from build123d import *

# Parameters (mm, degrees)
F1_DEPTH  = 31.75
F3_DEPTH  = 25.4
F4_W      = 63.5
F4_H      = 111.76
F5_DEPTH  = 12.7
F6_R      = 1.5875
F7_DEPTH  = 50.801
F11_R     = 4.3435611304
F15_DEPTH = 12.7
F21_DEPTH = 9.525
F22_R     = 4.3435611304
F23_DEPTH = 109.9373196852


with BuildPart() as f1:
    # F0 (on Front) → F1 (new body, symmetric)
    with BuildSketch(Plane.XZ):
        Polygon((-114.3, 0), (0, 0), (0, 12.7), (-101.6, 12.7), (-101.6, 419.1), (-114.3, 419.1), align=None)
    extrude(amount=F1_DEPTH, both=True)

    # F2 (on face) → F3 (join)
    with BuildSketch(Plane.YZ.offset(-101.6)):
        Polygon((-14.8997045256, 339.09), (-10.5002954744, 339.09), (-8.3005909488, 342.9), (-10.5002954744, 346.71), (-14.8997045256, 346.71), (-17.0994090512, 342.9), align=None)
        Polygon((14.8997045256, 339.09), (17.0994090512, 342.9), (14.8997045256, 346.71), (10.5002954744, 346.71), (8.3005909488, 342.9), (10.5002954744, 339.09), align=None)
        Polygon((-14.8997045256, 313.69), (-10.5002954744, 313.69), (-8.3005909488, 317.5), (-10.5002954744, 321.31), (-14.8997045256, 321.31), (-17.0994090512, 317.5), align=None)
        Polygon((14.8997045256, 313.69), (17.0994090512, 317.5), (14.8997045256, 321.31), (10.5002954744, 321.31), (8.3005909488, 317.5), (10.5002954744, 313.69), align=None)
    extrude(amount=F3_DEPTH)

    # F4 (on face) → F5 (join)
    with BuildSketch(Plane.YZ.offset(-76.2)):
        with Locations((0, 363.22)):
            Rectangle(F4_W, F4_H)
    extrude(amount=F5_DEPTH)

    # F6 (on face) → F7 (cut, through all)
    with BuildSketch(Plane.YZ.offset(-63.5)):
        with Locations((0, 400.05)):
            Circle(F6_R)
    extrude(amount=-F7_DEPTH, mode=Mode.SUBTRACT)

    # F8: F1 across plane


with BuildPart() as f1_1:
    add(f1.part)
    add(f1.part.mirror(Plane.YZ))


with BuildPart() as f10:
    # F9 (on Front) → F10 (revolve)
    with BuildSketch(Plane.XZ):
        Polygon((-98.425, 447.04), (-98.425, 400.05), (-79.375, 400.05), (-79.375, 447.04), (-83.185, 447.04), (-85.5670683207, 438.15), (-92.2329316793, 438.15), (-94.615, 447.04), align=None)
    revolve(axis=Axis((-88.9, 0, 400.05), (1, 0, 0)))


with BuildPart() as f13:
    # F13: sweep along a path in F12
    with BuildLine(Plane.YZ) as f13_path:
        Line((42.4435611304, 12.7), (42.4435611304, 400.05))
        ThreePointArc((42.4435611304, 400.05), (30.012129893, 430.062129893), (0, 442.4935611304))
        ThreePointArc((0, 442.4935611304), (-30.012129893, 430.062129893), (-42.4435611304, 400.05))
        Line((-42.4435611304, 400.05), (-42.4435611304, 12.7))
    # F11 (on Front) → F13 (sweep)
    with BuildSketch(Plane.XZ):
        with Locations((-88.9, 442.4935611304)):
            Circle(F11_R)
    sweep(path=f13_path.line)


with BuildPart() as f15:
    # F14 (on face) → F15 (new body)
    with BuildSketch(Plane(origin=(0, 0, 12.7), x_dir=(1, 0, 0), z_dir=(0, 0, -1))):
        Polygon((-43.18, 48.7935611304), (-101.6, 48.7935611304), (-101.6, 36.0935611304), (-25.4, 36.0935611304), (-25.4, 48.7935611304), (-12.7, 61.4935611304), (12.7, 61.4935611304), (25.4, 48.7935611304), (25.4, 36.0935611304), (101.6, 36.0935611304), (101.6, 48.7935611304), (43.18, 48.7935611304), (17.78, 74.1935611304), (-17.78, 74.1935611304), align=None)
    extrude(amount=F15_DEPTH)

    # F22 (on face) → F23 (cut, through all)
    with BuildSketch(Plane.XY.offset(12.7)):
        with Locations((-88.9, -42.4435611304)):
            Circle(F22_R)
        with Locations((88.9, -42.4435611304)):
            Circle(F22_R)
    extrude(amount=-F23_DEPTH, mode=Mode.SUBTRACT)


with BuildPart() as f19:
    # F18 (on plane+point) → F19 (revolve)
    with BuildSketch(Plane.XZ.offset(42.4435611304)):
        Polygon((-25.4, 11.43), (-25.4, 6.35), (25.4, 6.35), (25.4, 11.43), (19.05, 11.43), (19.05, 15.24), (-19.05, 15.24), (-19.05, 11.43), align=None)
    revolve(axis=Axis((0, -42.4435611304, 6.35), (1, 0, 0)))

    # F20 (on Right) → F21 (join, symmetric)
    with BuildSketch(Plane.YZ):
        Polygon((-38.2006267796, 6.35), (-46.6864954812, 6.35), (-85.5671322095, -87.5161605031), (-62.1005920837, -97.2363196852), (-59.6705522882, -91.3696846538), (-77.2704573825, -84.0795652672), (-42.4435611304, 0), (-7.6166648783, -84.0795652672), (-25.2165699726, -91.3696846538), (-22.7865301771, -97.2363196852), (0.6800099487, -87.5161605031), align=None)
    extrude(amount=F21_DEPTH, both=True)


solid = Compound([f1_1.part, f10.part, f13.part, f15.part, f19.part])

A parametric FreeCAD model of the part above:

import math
import FreeCAD as App
import Part
import Sketcher

V = App.Vector
Q = App.Units.Quantity


def add_polygon(sketch, points):
    """Adds a closed chain of lines whose ends are joined by coincident constraints."""
    first, n = sketch.GeometryCount, len(points)
    for a, b in zip(points, points[1:] + points[:1]):
        sketch.addGeometry(Part.LineSegment(App.Vector(*a, 0), App.Vector(*b, 0)), False)
    for i in range(n):
        sketch.addConstraint(Sketcher.Constraint("Coincident", first + i, 2, first + (i + 1) % n, 1))

doc = App.newDocument("Part")
params = doc.addObject("Spreadsheet::Sheet", "Params")
for row, (alias, value) in enumerate([
    ("sketch1_width", "4 in"),
    ("sketch1_height", "16 in"),
    ("sketch1_width2", "4.5 in"),
    ("pad1_length", "2.5 in"),
    ("pad2_length", "1 in"),
    ("sketch3_width", "2.5 in"),
    ("sketch3_height", "4.4 in"),
    ("pad3_length", "0.5 in"),
    ("sketch4_diameter", "0.125 in"),
    ("sketch5_width", "0.75 in"),
    ("sketch5_width2", "0.15 in"),
    ("sketch5_height", "1.85 in"),
    ("revolution_angle", "360 deg"),
    ("sketch7_height", "15.25 in"),
    ("sketch8_width", "3 in"),
    ("sketch8_width2", "1 in"),
    ("sketch8_width3", "2.3 in"),
    ("sketch8_width4", "1.4 in"),
    ("sketch8_height", "0.5 in"),
    ("pad4_length", "0.5 in"),
    ("sketch10_width", "2 in"),
    ("sketch10_width2", "1.5 in"),
    ("sketch10_height", "0.2 in"),
    ("sketch10_height2", "0.15 in"),
    ("revolution2_angle", "360 deg"),
    ("sketch11_length", "4 in"),
    ("sketch11_length2", "1 in"),
    ("sketch11_length3", "0.25 in"),
    ("sketch11_length4", "0.75 in"),
    ("pad5_length", "0.75 in"),
], start=1):
    params.set(f"A{row}", alias)
    params.set(f"B{row}", "=" + value)
    params.setAlias(f"B{row}", alias)

body = doc.addObject("PartDesign::Body", "Body")

# Sketch on XZ plane
sketch1 = doc.addObject("Sketcher::SketchObject", "Sketch")
body.addObject(sketch1)
sketch1.AttachmentSupport = (doc.XZ_Plane, [""])
sketch1.MapMode = "FlatFace"
add_polygon(sketch1, [(-114, 0), (0, 0), (0, 13), (-102, 13), (-102, 419), (-114, 419)])  # lines 0-5
sketch1.addConstraint([
    Sketcher.Constraint("Horizontal", 0),
    Sketcher.Constraint("Vertical", 1),
    Sketcher.Constraint("Horizontal", 2),
    Sketcher.Constraint("Vertical", 3),
    Sketcher.Constraint("Horizontal", 4),
    Sketcher.Constraint("Vertical", 5),
    Sketcher.Constraint("Coincident", 0, 2, -1, 1),
    Sketcher.Constraint("Equal", 4, 1),
    Sketcher.Constraint("DistanceX", 2, 2, 2, 1, Q("4 in")),
    Sketcher.Constraint("DistanceY", 3, 1, 3, 2, Q("16 in")),
    Sketcher.Constraint("DistanceX", 0, 1, 0, 2, Q("4.5 in")),
])
sketch1.setExpression("Constraints[14]", "Params.sketch1_width")
sketch1.setExpression("Constraints[15]", "Params.sketch1_height")
sketch1.setExpression("Constraints[16]", "Params.sketch1_width2")
pad1 = doc.addObject("PartDesign::Pad", "Pad")
body.addObject(pad1)
pad1.Profile = sketch1
pad1.setExpression("Length", "Params.pad1_length")
pad1.Midplane = True

# Sketch on YZ plane
sketch2 = doc.addObject("Sketcher::SketchObject", "Sketch001")
body.addObject(sketch2)
sketch2.AttachmentSupport = (doc.YZ_Plane, [""])
sketch2.MapMode = "FlatFace"
sketch2.AttachmentOffset = App.Placement(V(0, 0, -4 * 25.4), App.Rotation())
add_polygon(sketch2, [(-14.9, 339.1), (-10.5, 339.1), (-8.3, 342.9), (-10.5, 346.7), (-14.9, 346.7), (-17.1, 342.9)])  # lines 0-5
add_polygon(sketch2, [(14.9, 339.1), (17.1, 342.9), (14.9, 346.7), (10.5, 346.7), (8.3, 342.9), (10.5, 339.1)])  # lines 6-11
add_polygon(sketch2, [(-14.9, 313.7), (-10.5, 313.7), (-8.3, 317.5), (-10.5, 321.3), (-14.9, 321.3), (-17.1, 317.5)])  # lines 12-17
add_polygon(sketch2, [(14.9, 313.7), (17.1, 317.5), (14.9, 321.3), (10.5, 321.3), (8.3, 317.5), (10.5, 313.7)])  # lines 18-23
sketch2.addConstraint([
    Sketcher.Constraint("Horizontal", 0),
    Sketcher.Constraint("Horizontal", 3),
    Sketcher.Constraint("Horizontal", 8),
    Sketcher.Constraint("Horizontal", 11),
    Sketcher.Constraint("Horizontal", 12),
    Sketcher.Constraint("Horizontal", 15),
    Sketcher.Constraint("Horizontal", 20),
    Sketcher.Constraint("Horizontal", 23),
    Sketcher.Constraint("Symmetric", 4, 2, 6, 2, -2),
    Sketcher.Constraint("Symmetric", 3, 2, 7, 2, -2),
    Sketcher.Constraint("Symmetric", 1, 2, 9, 2, -2),
    Sketcher.Constraint("Symmetric", 0, 2, 10, 2, -2),
    Sketcher.Constraint("Symmetric", 16, 2, 18, 2, -2),
    Sketcher.Constraint("Symmetric", 15, 2, 19, 2, -2),
    Sketcher.Constraint("Symmetric", 13, 2, 21, 2, -2),
    Sketcher.Constraint("Symmetric", 12, 2, 22, 2, -2),
    Sketcher.Constraint("Parallel", 1, 4),
    Sketcher.Constraint("Parallel", 2, 5),
    Sketcher.Constraint("Parallel", 4, 6),
    Sketcher.Constraint("Parallel", 5, 7),
    Sketcher.Constraint("Parallel", 6, 9),
    Sketcher.Constraint("Parallel", 9, 13),
    Sketcher.Constraint("Parallel", 10, 14),
    Sketcher.Constraint("Parallel", 13, 16),
    Sketcher.Constraint("Parallel", 14, 17),
    Sketcher.Constraint("Parallel", 16, 18),
    Sketcher.Constraint("Parallel", 18, 21),
    Sketcher.Constraint("Horizontal", 1, 2, 4, 2),
    Sketcher.Constraint("Horizontal", 13, 2, 16, 2),
    Sketcher.Constraint("Vertical", 0, 2, 2, 2),
    Sketcher.Constraint("Vertical", 2, 2, 12, 2),
    Sketcher.Constraint("Vertical", 1, 2, 13, 2),
    Sketcher.Constraint("Vertical", 12, 2, 14, 2),
    Sketcher.Constraint("Vertical", 5, 2, 15, 2),
    Sketcher.Constraint("Angle", 1, Q("60 deg")),
    Sketcher.Constraint("DistanceX", 1, 2, 6, 2, Q("1 in")),
    Sketcher.Constraint("DistanceY", 12, 2, 0, 2, Q("1 in")),
    Sketcher.Constraint("DistanceY", -1, 1, 1, 2, Q("13.5 in")),
    Sketcher.Constraint("DistanceY", 0, 2, 2, 2, Q("0.3 in")),
    Sketcher.Constraint("DistanceX", 0, 1, 0, 2, 4.399409),
])
pad2 = doc.addObject("PartDesign::Pad", "Pad001")
body.addObject(pad2)
pad2.Profile = sketch2
pad2.setExpression("Length", "Params.pad2_length")

# Sketch on YZ plane
sketch3 = doc.addObject("Sketcher::SketchObject", "Sketch002")
body.addObject(sketch3)
sketch3.AttachmentSupport = (doc.YZ_Plane, [""])
sketch3.MapMode = "FlatFace"
sketch3.AttachmentOffset = App.Placement(V(0, 0, -3 * 25.4), App.Rotation())
add_polygon(sketch3, [(-32, 419), (-32, 307), (32, 307), (32, 419)])  # lines 0-3
sketch3.addConstraint([
    Sketcher.Constraint("Vertical", 0),
    Sketcher.Constraint("Horizontal", 1),
    Sketcher.Constraint("Vertical", 2),
    Sketcher.Constraint("Horizontal", 3),
    Sketcher.Constraint("DistanceX", 1, 1, 1, 2, Q("2.5 in")),
    Sketcher.Constraint("DistanceY", 0, 2, 0, 1, Q("4.4 in")),
    Sketcher.Constraint("DistanceY", -1, 1, 0, 2, Q("12.1 in")),
    Sketcher.Constraint("DistanceX", 0, 2, -1, 1, Q("1.25 in")),
])
sketch3.setExpression("Constraints[8]", "Params.sketch3_width")
sketch3.setExpression("Constraints[9]", "Params.sketch3_height")
pad3 = doc.addObject("PartDesign::Pad", "Pad002")
body.addObject(pad3)
pad3.Profile = sketch3
pad3.setExpression("Length", "Params.pad3_length")

# Sketch on YZ plane
sketch4 = doc.addObject("Sketcher::SketchObject", "Sketch003")
body.addObject(sketch4)
sketch4.AttachmentSupport = (doc.YZ_Plane, [""])
sketch4.MapMode = "FlatFace"
sketch4.AttachmentOffset = App.Placement(V(0, 0, -2.5 * 25.4), App.Rotation())
sketch4.addGeometry(Part.Circle(V(0, 400.1, 0), V(0, 0, 1), 1.6), False)
sketch4.addConstraint([
    Sketcher.Constraint("PointOnObject", 0, 3, -2),
    Sketcher.Constraint("Diameter", 0, Q("0.125 in")),
    Sketcher.Constraint("DistanceY", -1, 1, 0, 3, Q("15.75 in")),
])
sketch4.setExpression("Constraints[1]", "Params.sketch4_diameter")
pocket1 = doc.addObject("PartDesign::Pocket", "Pocket")
body.addObject(pocket1)
pocket1.Profile = sketch4
pocket1.Type = "ThroughAll"
body2 = doc.addObject("PartDesign::Body", "Body001")
doc.recompute()

body2.BaseFeature = body
doc.recompute()

mirroring = doc.addObject("Part::Mirroring", "Mirroring")
mirroring.Source = body
mirroring.Base = V(0, 0, 0)
mirroring.Normal = V(1, 0, 0)
body3 = doc.addObject("PartDesign::Body", "Body002")
body3.BaseFeature = mirroring
boolean = doc.addObject("PartDesign::Boolean", "Boolean")
body2.addObject(boolean)
boolean.Type = "Fuse"
boolean.addObjects([body3])
doc.recompute()
body4 = doc.addObject("PartDesign::Body", "Body003")

# Sketch on XZ plane
sketch5 = doc.addObject("Sketcher::SketchObject", "Sketch004")
body4.addObject(sketch5)
sketch5.AttachmentSupport = (doc.getObject("XZ_Plane003"), [""])
sketch5.MapMode = "FlatFace"
add_polygon(sketch5, [(-98.4, 447), (-98.4, 400.1), (-79.4, 400.1), (-79.4, 447), (-83.2, 447), (-85.6, 438.1), (-92.2, 438.1), (-94.6, 447)])  # lines 0-7
sketch5.addGeometry(Part.LineSegment(V(-98.4, 400.1, 0), V(-79.4, 400.1, 0)), True)  # axis
sketch5.addConstraint([
    Sketcher.Constraint("Vertical", 0),
    Sketcher.Constraint("Horizontal", 1),
    Sketcher.Constraint("Vertical", 2),
    Sketcher.Constraint("Horizontal", 3),
    Sketcher.Constraint("Horizontal", 5),
    Sketcher.Constraint("Horizontal", 7),
    Sketcher.Constraint("Horizontal", 8),
    Sketcher.Constraint("Coincident", 8, 1, 0, 2),
    Sketcher.Constraint("Horizontal", 3, 2, 6, 2),
    Sketcher.Constraint("Vertical", 2, 2, 8, 2),
    Sketcher.Constraint("Equal", 3, 7),
    Sketcher.Constraint("Equal", 4, 6),
    Sketcher.Constraint("Angle", 4, Q("-105 deg")),
    Sketcher.Constraint("DistanceX", 1, 1, 1, 2, Q("0.75 in")),
    Sketcher.Constraint("DistanceX", 3, 2, 3, 1, Q("0.15 in")),
    Sketcher.Constraint("DistanceY", 0, 2, 0, 1, Q("1.85 in")),
    Sketcher.Constraint("DistanceY", -1, 1, 2, 2, Q("17.6 in")),
    Sketcher.Constraint("DistanceY", 1, 2, 4, 2, Q("1.5 in")),
    Sketcher.Constraint("DistanceX", 0, 2, -1, 1, Q("3.875 in")),
])
sketch5.setExpression("Constraints[21]", "Params.sketch5_width")
sketch5.setExpression("Constraints[22]", "Params.sketch5_width2")
sketch5.setExpression("Constraints[23]", "Params.sketch5_height")
revolution = doc.addObject("PartDesign::Revolution", "Revolution")
body4.addObject(revolution)
revolution.Profile = sketch5
revolution.ReferenceAxis = (sketch5, ["Axis0"])
revolution.setExpression("Angle", "Params.revolution_angle")
body5 = doc.addObject("PartDesign::Body", "Body004")

# Sketch on XZ plane
sketch6 = doc.addObject("Sketcher::SketchObject", "Sketch005")
body5.addObject(sketch6)
sketch6.AttachmentSupport = (doc.getObject("XZ_Plane004"), [""])
sketch6.MapMode = "FlatFace"
sketch6.addGeometry(Part.Circle(V(-88.9, 442.5, 0), V(0, 0, 1), 4.3), False)
sketch6.addConstraint([
    Sketcher.Constraint("DistanceX", 0, 3, -1, 1, Q("3.5 in")),
    Sketcher.Constraint("Diameter", 0, 8.687122),
    Sketcher.Constraint("DistanceY", -1, 1, 0, 3, 442.493561),
])

# Sketch on YZ plane
sketch7 = doc.addObject("Sketcher::SketchObject", "Sketch006")
body5.addObject(sketch7)
sketch7.AttachmentSupport = (doc.getObject("YZ_Plane004"), [""])
sketch7.MapMode = "FlatFace"
sketch7.addGeometry([
    Part.LineSegment(V(42, 13, 0), V(42, 400, 0)),
    Part.ArcOfCircle(Part.Circle(V(0, 400, 0), V(0, 0, 1), 42), math.radians(0), math.radians(90)),
    Part.ArcOfCircle(Part.Circle(V(0, 400, 0), V(0, 0, 1), 42), math.radians(90), math.radians(180)),
    Part.LineSegment(V(-42, 400, 0), V(-42, 13, 0)),
], False)
sketch7.addConstraint([
    Sketcher.Constraint("Tangent", 0, 2, 1, 1),
    Sketcher.Constraint("Tangent", 1, 2, 2, 1),
    Sketcher.Constraint("Tangent", 2, 2, 3, 1),
    Sketcher.Constraint("Vertical", 0),
    Sketcher.Constraint("Vertical", 3),
    Sketcher.Constraint("Equal", 1, 2),
    Sketcher.Constraint("Symmetric", 0, 1, 3, 2, -2),
    Sketcher.Constraint("PointOnObject", 1, 2, -2),
    Sketcher.Constraint("DistanceY", 0, 1, 0, 2, Q("15.25 in")),
    Sketcher.Constraint("DistanceY", -1, 1, 0, 1, Q("0.5 in")),
    Sketcher.Constraint("Radius", 1, 42.443561),
])
sketch7.setExpression("Constraints[8]", "Params.sketch7_height")
doc.recompute()

additivepipe = doc.addObject("PartDesign::AdditivePipe", "AdditivePipe")
body5.addObject(additivepipe)
additivepipe.Profile = sketch6
additivepipe.Spine = (sketch7, ["Edge1", "Edge2", "Edge3", "Edge4"])
body6 = doc.addObject("PartDesign::Body", "Body005")

# Sketch on XY plane
sketch8 = doc.addObject("Sketcher::SketchObject", "Sketch007")
body6.addObject(sketch8)
sketch8.AttachmentSupport = (doc.getObject("XY_Plane005"), [""])
sketch8.MapMode = "FlatFace"
sketch8.AttachmentOffset = App.Placement(V(0, 0, 0.5 * 25.4), App.Rotation())
add_polygon(sketch8, [(-43, -49), (-102, -49), (-102, -36), (-25, -36), (-25, -49), (-13, -61), (13, -61), (25, -49), (25, -36), (102, -36), (102, -49), (43, -49), (18, -74), (-18, -74)])  # lines 0-13
sketch8.addConstraint([
    Sketcher.Constraint("Horizontal", 0),
    Sketcher.Constraint("Vertical", 1),
    Sketcher.Constraint("Horizontal", 2),
    Sketcher.Constraint("Vertical", 3),
    Sketcher.Constraint("Horizontal", 5),
    Sketcher.Constraint("Vertical", 7),
    Sketcher.Constraint("Horizontal", 8),
    Sketcher.Constraint("Vertical", 9),
    Sketcher.Constraint("Horizontal", 10),
    Sketcher.Constraint("Horizontal", 12),
    Sketcher.Constraint("Symmetric", 3, 2, 6, 2, -2),
    Sketcher.Constraint("Symmetric", 1, 2, 8, 2, -2),
    Sketcher.Constraint("Symmetric", 10, 2, 13, 2, -2),
    Sketcher.Constraint("Perpendicular", 4, 6),
    Sketcher.Constraint("Parallel", 6, 11),
    Sketcher.Constraint("Perpendicular", 11, 13),
    Sketcher.Constraint("Horizontal", 0, 2, 3, 2),
    Sketcher.Constraint("Equal", 4, 6),
    Sketcher.Constraint("DistanceX", 2, 1, 2, 2, Q("3 in")),
    Sketcher.Constraint("DistanceX", 5, 1, 5, 2, Q("1 in")),
    Sketcher.Constraint("DistanceX", 0, 2, 0, 1, Q("2.3 in")),
    Sketcher.Constraint("DistanceX", 12, 2, 12, 1, Q("1.4 in")),
    Sketcher.Constraint("DistanceY", 1, 1, 1, 2, Q("0.5 in")),
    Sketcher.Constraint("DistanceX", 0, 2, -1, 1, Q("4 in")),
    Sketcher.Constraint("DistanceY", 0, 2, -1, 1, 48.793561),
])
sketch8.setExpression("Constraints[32]", "Params.sketch8_width")
sketch8.setExpression("Constraints[33]", "Params.sketch8_width2")
sketch8.setExpression("Constraints[34]", "Params.sketch8_width3")
sketch8.setExpression("Constraints[35]", "Params.sketch8_width4")
sketch8.setExpression("Constraints[36]", "Params.sketch8_height")
pad4 = doc.addObject("PartDesign::Pad", "Pad003")
body6.addObject(pad4)
pad4.Profile = sketch8
pad4.setExpression("Length", "Params.pad4_length")
pad4.Reversed = True

# Sketch on XY plane
sketch9 = doc.addObject("Sketcher::SketchObject", "Sketch008")
body6.addObject(sketch9)
sketch9.AttachmentSupport = (doc.getObject("XY_Plane005"), [""])
sketch9.MapMode = "FlatFace"
sketch9.AttachmentOffset = App.Placement(V(0, 0, 0.5 * 25.4), App.Rotation())
sketch9.addGeometry([
    Part.Circle(V(-88.9, -42.4, 0), V(0, 0, 1), 4.3),
    Part.Circle(V(88.9, -42.4, 0), V(0, 0, 1), 4.3),
], False)
sketch9.addConstraint([
    Sketcher.Constraint("Equal", 0, 1),
    Sketcher.Constraint("Symmetric", 0, 3, 1, 3, -2),
    Sketcher.Constraint("DistanceX", 0, 3, 1, 3, Q("7 in")),
    Sketcher.Constraint("Diameter", 0, 8.687122),
    Sketcher.Constraint("DistanceY", 0, 3, -1, 1, 42.443561),
])
pocket2 = doc.addObject("PartDesign::Pocket", "Pocket001")
body6.addObject(pocket2)
pocket2.Profile = sketch9
pocket2.Type = "ThroughAll"
body7 = doc.addObject("PartDesign::Body", "Body006")

# Sketch on XZ plane
sketch10 = doc.addObject("Sketcher::SketchObject", "Sketch009")
body7.addObject(sketch10)
sketch10.AttachmentSupport = (doc.getObject("XZ_Plane006"), [""])
sketch10.MapMode = "FlatFace"
sketch10.AttachmentOffset = App.Placement(V(0, 0, 42.443561), App.Rotation())
add_polygon(sketch10, [(-25.4, 11.4), (-25.4, 6.3), (25.4, 6.3), (25.4, 11.4), (19.1, 11.4), (19.1, 15.2), (-19.1, 15.2), (-19.1, 11.4)])  # lines 0-7
sketch10.addGeometry(Part.LineSegment(V(-25.4, 6.3, 0), V(25.4, 6.3, 0)), True)  # axis
sketch10.addConstraint([
    Sketcher.Constraint("Vertical", 0),
    Sketcher.Constraint("Horizontal", 1),
    Sketcher.Constraint("Vertical", 2),
    Sketcher.Constraint("Horizontal", 3),
    Sketcher.Constraint("Vertical", 4),
    Sketcher.Constraint("Horizontal", 5),
    Sketcher.Constraint("Vertical", 6),
    Sketcher.Constraint("Horizontal", 7),
    Sketcher.Constraint("Horizontal", 8),
    Sketcher.Constraint("Coincident", 8, 1, 0, 2),
    Sketcher.Constraint("Symmetric", 3, 2, 6, 2, -2),
    Sketcher.Constraint("Vertical", 2, 2, 8, 2),
    Sketcher.Constraint("Equal", 3, 7),
    Sketcher.Constraint("DistanceX", 1, 1, 1, 2, Q("2 in")),
    Sketcher.Constraint("DistanceX", 5, 2, 5, 1, Q("1.5 in")),
    Sketcher.Constraint("DistanceY", 0, 2, 0, 1, Q("0.2 in")),
    Sketcher.Constraint("DistanceY", 4, 1, 4, 2, Q("0.15 in")),
    Sketcher.Constraint("DistanceY", -1, 1, 4, 2, Q("0.6 in")),
])
sketch10.setExpression("Constraints[21]", "Params.sketch10_width")
sketch10.setExpression("Constraints[22]", "Params.sketch10_width2")
sketch10.setExpression("Constraints[23]", "Params.sketch10_height")
sketch10.setExpression("Constraints[24]", "Params.sketch10_height2")
revolution2 = doc.addObject("PartDesign::Revolution", "Revolution001")
body7.addObject(revolution2)
revolution2.Profile = sketch10
revolution2.ReferenceAxis = (sketch10, ["Axis0"])
revolution2.setExpression("Angle", "Params.revolution2_angle")

# Sketch on YZ plane
sketch11 = doc.addObject("Sketcher::SketchObject", "Sketch010")
body7.addObject(sketch11)
sketch11.AttachmentSupport = (doc.getObject("YZ_Plane006"), [""])
sketch11.MapMode = "FlatFace"
add_polygon(sketch11, [(-38, 6), (-47, 6), (-86, -88), (-62, -97), (-60, -91), (-77, -84), (-42, 0), (-8, -84), (-25, -91), (-23, -97), (1, -88)])  # lines 0-10
sketch11.addConstraint([
    Sketcher.Constraint("Horizontal", 0),
    Sketcher.Constraint("PointOnObject", 5, 2, -1),
    Sketcher.Constraint("Perpendicular", 1, 2),
    Sketcher.Constraint("Perpendicular", 2, 3),
    Sketcher.Constraint("Perpendicular", 3, 4),
    Sketcher.Constraint("Perpendicular", 4, 5),
    Sketcher.Constraint("Perpendicular", 6, 7),
    Sketcher.Constraint("Perpendicular", 7, 8),
    Sketcher.Constraint("Perpendicular", 8, 9),
    Sketcher.Constraint("Perpendicular", 9, 10),
    Sketcher.Constraint("Horizontal", 4, 2, 6, 2),
    Sketcher.Constraint("Horizontal", 3, 2, 7, 2),
    Sketcher.Constraint("Horizontal", 2, 2, 8, 2),
    Sketcher.Constraint("Horizontal", 1, 2, 9, 2),
    Sketcher.Constraint("Equal", 5, 6),
    Sketcher.Constraint("Distance", 1, Q("4 in")),
    Sketcher.Constraint("Distance", 2, Q("1 in")),
    Sketcher.Constraint("Angle", 1, Q("-112.5 deg")),
    Sketcher.Constraint("Distance", 3, Q("0.25 in")),
    Sketcher.Constraint("Distance", 4, Q("0.75 in")),
    Sketcher.Constraint("DistanceY", -1, 1, 0, 2, Q("0.25 in")),
    Sketcher.Constraint("DistanceX", 5, 2, -1, 1, 42.443561),
])
sketch11.setExpression("Constraints[26]", "Params.sketch11_length")
sketch11.setExpression("Constraints[27]", "Params.sketch11_length2")
sketch11.setExpression("Constraints[29]", "Params.sketch11_length3")
sketch11.setExpression("Constraints[30]", "Params.sketch11_length4")
pad5 = doc.addObject("PartDesign::Pad", "Pad004")
body7.addObject(pad5)
pad5.Profile = sketch11
pad5.setExpression("Length", "Params.pad5_length")
pad5.Midplane = True
mirroring.Visibility = False

doc.recompute()
